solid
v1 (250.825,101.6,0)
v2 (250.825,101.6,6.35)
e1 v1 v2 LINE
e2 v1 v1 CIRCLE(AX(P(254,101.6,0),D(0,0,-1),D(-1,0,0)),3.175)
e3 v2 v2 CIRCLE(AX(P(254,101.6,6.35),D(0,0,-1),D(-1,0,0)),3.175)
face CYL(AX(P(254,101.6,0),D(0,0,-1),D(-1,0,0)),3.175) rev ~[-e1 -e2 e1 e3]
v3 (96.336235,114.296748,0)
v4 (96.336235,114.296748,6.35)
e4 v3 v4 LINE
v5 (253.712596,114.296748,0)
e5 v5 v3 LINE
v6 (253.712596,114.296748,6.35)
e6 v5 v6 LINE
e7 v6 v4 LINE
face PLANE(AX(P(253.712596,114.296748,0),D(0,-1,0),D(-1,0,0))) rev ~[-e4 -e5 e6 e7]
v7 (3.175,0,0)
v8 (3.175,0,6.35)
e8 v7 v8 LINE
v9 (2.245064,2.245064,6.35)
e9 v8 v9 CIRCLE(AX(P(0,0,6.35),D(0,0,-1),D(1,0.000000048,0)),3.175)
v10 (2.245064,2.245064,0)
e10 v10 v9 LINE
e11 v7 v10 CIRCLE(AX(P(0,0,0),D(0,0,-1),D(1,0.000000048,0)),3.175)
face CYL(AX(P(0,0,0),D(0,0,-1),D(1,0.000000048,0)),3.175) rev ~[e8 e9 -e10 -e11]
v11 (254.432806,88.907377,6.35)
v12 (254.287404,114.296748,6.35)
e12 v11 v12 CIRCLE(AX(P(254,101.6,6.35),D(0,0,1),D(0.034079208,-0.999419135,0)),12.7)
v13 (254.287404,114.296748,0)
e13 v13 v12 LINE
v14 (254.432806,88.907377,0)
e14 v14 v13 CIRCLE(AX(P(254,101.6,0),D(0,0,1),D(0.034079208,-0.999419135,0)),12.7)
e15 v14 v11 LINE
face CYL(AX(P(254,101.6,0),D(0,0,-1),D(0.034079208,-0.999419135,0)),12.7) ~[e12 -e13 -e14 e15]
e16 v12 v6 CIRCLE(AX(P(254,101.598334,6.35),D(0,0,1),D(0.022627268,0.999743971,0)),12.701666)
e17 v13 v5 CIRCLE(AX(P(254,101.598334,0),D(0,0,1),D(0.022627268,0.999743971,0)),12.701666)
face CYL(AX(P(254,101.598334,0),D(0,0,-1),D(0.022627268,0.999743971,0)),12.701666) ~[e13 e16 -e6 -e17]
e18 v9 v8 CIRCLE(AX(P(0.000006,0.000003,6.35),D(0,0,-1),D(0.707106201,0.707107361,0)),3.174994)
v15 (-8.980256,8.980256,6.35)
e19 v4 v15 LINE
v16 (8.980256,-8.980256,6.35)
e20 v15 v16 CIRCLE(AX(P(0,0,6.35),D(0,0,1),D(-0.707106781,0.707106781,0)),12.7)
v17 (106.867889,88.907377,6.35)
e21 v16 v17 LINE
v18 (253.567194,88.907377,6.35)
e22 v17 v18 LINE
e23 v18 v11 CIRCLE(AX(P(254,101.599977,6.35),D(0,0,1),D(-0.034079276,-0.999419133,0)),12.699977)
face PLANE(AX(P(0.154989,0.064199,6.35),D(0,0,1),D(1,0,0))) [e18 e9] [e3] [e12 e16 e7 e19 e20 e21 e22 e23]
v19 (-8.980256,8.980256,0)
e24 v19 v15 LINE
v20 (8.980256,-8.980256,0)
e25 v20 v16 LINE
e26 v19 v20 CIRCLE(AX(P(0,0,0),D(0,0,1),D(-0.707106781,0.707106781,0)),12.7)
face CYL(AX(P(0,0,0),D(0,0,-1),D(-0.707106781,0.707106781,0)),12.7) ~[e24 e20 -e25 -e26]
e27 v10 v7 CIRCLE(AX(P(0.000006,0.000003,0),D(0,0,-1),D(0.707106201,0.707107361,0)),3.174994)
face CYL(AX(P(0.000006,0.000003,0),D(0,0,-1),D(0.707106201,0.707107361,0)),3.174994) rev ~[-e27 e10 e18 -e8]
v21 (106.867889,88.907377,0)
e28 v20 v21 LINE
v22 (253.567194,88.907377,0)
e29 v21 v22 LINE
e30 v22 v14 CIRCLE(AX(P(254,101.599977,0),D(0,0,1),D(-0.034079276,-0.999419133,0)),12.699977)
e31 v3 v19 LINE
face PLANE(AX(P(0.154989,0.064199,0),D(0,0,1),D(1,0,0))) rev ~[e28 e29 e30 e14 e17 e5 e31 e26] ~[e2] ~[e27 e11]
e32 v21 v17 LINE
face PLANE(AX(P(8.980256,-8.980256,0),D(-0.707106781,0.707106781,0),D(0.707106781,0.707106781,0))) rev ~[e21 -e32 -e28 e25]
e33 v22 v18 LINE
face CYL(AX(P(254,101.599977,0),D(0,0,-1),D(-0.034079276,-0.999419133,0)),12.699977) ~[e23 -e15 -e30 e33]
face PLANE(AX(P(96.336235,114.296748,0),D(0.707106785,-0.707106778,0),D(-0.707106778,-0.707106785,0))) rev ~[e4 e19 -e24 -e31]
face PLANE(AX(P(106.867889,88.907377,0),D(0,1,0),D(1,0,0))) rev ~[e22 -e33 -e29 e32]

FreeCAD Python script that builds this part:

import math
import FreeCAD as App
import Part
import Sketcher

V = App.Vector
Q = App.Units.Quantity

doc = App.newDocument("Part")
body = doc.addObject("PartDesign::Body", "Body")

sketch1 = body.newObject("Sketcher::SketchObject", "Sketch")
sketch1.AttachmentSupport = (doc.getObject("XY_Plane"), [""])
sketch1.MapMode = "FlatFace"
sketch1.addGeometry(Part.LineSegment(V(96.336235, 114.296748, 0), V(-8.980256, 8.980256, 0)), False)
sketch1.addGeometry(Part.ArcOfCircle(Part.Circle(V(0, 0, 0), V(0, 0, 1), 12.7), math.radians(135), math.radians(315)), False)
sketch1.addGeometry(Part.LineSegment(V(8.980256, -8.980256, 0), V(106.867889, 88.907377, 0)), False)
sketch1.addGeometry(Part.LineSegment(V(106.867889, 88.907377, 0), V(253.567194, 88.907377, 0)), False)
sketch1.addGeometry(Part.ArcOfCircle(Part.Circle(V(254, 101.599977, 0), V(0, 0, 1), 12.699977), math.radians(-91.952977), math.radians(-88.047023)), False)
sketch1.addGeometry(Part.ArcOfCircle(Part.Circle(V(254, 101.6, 0), V(0, 0, 1), 12.7), math.radians(-88.047027), math.radians(88.703273)), False)
sketch1.addGeometry(Part.ArcOfCircle(Part.Circle(V(254, 101.598334, 0), V(0, 0, 1), 12.701666), math.radians(88.703442), math.radians(91.296558)), False)
sketch1.addGeometry(Part.LineSegment(V(253.712596, 114.296748, 0), V(96.336235, 114.296748, 0)), False)
sketch1.addGeometry(Part.ArcOfCircle(Part.Circle(V(0, 0, 0), V(0, 0, 1), 3.175), math.radians(44.999999), math.radians(360.000003)), False)
sketch1.addGeometry(Part.ArcOfCircle(Part.Circle(V(0.000006, 0.000003, 0), V(0, 0, 1), 3.174994), math.radians(-0.000045), math.radians(45.000047)), False)
sketch1.addGeometry(Part.Circle(V(254, 101.6, 0), V(0, 0, 1), 3.175), False)
sketch1.addConstraint(Sketcher.Constraint("Coincident", 0, 2, 1, 1))
sketch1.addConstraint(Sketcher.Constraint("Coincident", 1, 2, 2, 1))
sketch1.addConstraint(Sketcher.Constraint("Coincident", 2, 2, 3, 1))
sketch1.addConstraint(Sketcher.Constraint("Coincident", 3, 2, 4, 1))
sketch1.addConstraint(Sketcher.Constraint("Coincident", 4, 2, 5, 1))
sketch1.addConstraint(Sketcher.Constraint("Coincident", 5, 2, 6, 1))
sketch1.addConstraint(Sketcher.Constraint("Coincident", 6, 2, 7, 1))
sketch1.addConstraint(Sketcher.Constraint("Coincident", 7, 2, 0, 1))
sketch1.addConstraint(Sketcher.Constraint("Coincident", 8, 1, 9, 2))
sketch1.addConstraint(Sketcher.Constraint("Coincident", 9, 1, 8, 2))
sketch1.addConstraint(Sketcher.Constraint("Horizontal", 3))
sketch1.addConstraint(Sketcher.Constraint("Horizontal", 7))
sketch1.addConstraint(Sketcher.Constraint("Coincident", 1, 3, -1, 1))
sketch1.addConstraint(Sketcher.Constraint("Coincident", 8, 3, -1, 1))
sketch1.addConstraint(Sketcher.Constraint("Coincident", 10, 3, 5, 3))
sketch1.addConstraint(Sketcher.Constraint("PointOnObject", 9, 1, -1))
sketch1.addConstraint(Sketcher.Constraint("Radius", 1, Q("0.5 in")))
sketch1.addConstraint(Sketcher.Constraint("Radius", 5, Q("0.5 in")))
sketch1.addConstraint(Sketcher.Constraint("Diameter", 10, Q("0.25 in")))
sketch1.addConstraint(Sketcher.Constraint("DistanceX", -1, 1, 4, 3, Q("10 in")))
sketch1.addConstraint(Sketcher.Constraint("DistanceX", -1, 1, 5, 3, Q("10 in")))
sketch1.addConstraint(Sketcher.Constraint("DistanceY", -1, 1, 5, 3, Q("4 in")))
sketch1.addConstraint(Sketcher.Constraint("DistanceX", -1, 1, 6, 3, Q("10 in")))
sketch1.addConstraint(Sketcher.Constraint("Radius", 8, Q("0.125 in")))
sketch1.addConstraint(Sketcher.Constraint("DistanceY", 9, 3, 5, 3, Q("3.9999999 in")))
sketch1.addConstraint(Sketcher.Constraint("Radius", 4, Q("12.699977 mm")))
sketch1.addConstraint(Sketcher.Constraint("Radius", 6, Q("12.701666 mm")))
sketch1.addConstraint(Sketcher.Constraint("DistanceX", 7, 2, 7, 1, Q("157.376361 mm")))
sketch1.addConstraint(Sketcher.Constraint("DistanceY", 3, 2, 4, 3, Q("12.6926 mm")))
sketch1.addConstraint(Sketcher.Constraint("DistanceY", 4, 2, 4, 3, Q("12.6926 mm")))
sketch1.addConstraint(Sketcher.Constraint("Distance", 0, Q("148.940011 mm")))
sketch1.addConstraint(Sketcher.Constraint("Distance", 2, Q("138.434018 mm")))
sketch1.addConstraint(Sketcher.Constraint("DistanceX", 3, 1, 3, 2, Q("146.699305 mm")))
sketch1.addConstraint(Sketcher.Constraint("DistanceY", -1, 1, 6, 2, Q("114.296748 mm")))
sketch1.addConstraint(Sketcher.Constraint("DistanceY", 4, 3, 5, 2, Q("12.696771 mm")))
sketch1.addConstraint(Sketcher.Constraint("DistanceY", 9, 3, 8, 1, Q("2.245061 mm")))
pad1 = body.newObject("PartDesign::Pad", "Pad")
pad1.Profile = sketch1
pad1.Length = Q("0.25 in")

doc.recompute()
